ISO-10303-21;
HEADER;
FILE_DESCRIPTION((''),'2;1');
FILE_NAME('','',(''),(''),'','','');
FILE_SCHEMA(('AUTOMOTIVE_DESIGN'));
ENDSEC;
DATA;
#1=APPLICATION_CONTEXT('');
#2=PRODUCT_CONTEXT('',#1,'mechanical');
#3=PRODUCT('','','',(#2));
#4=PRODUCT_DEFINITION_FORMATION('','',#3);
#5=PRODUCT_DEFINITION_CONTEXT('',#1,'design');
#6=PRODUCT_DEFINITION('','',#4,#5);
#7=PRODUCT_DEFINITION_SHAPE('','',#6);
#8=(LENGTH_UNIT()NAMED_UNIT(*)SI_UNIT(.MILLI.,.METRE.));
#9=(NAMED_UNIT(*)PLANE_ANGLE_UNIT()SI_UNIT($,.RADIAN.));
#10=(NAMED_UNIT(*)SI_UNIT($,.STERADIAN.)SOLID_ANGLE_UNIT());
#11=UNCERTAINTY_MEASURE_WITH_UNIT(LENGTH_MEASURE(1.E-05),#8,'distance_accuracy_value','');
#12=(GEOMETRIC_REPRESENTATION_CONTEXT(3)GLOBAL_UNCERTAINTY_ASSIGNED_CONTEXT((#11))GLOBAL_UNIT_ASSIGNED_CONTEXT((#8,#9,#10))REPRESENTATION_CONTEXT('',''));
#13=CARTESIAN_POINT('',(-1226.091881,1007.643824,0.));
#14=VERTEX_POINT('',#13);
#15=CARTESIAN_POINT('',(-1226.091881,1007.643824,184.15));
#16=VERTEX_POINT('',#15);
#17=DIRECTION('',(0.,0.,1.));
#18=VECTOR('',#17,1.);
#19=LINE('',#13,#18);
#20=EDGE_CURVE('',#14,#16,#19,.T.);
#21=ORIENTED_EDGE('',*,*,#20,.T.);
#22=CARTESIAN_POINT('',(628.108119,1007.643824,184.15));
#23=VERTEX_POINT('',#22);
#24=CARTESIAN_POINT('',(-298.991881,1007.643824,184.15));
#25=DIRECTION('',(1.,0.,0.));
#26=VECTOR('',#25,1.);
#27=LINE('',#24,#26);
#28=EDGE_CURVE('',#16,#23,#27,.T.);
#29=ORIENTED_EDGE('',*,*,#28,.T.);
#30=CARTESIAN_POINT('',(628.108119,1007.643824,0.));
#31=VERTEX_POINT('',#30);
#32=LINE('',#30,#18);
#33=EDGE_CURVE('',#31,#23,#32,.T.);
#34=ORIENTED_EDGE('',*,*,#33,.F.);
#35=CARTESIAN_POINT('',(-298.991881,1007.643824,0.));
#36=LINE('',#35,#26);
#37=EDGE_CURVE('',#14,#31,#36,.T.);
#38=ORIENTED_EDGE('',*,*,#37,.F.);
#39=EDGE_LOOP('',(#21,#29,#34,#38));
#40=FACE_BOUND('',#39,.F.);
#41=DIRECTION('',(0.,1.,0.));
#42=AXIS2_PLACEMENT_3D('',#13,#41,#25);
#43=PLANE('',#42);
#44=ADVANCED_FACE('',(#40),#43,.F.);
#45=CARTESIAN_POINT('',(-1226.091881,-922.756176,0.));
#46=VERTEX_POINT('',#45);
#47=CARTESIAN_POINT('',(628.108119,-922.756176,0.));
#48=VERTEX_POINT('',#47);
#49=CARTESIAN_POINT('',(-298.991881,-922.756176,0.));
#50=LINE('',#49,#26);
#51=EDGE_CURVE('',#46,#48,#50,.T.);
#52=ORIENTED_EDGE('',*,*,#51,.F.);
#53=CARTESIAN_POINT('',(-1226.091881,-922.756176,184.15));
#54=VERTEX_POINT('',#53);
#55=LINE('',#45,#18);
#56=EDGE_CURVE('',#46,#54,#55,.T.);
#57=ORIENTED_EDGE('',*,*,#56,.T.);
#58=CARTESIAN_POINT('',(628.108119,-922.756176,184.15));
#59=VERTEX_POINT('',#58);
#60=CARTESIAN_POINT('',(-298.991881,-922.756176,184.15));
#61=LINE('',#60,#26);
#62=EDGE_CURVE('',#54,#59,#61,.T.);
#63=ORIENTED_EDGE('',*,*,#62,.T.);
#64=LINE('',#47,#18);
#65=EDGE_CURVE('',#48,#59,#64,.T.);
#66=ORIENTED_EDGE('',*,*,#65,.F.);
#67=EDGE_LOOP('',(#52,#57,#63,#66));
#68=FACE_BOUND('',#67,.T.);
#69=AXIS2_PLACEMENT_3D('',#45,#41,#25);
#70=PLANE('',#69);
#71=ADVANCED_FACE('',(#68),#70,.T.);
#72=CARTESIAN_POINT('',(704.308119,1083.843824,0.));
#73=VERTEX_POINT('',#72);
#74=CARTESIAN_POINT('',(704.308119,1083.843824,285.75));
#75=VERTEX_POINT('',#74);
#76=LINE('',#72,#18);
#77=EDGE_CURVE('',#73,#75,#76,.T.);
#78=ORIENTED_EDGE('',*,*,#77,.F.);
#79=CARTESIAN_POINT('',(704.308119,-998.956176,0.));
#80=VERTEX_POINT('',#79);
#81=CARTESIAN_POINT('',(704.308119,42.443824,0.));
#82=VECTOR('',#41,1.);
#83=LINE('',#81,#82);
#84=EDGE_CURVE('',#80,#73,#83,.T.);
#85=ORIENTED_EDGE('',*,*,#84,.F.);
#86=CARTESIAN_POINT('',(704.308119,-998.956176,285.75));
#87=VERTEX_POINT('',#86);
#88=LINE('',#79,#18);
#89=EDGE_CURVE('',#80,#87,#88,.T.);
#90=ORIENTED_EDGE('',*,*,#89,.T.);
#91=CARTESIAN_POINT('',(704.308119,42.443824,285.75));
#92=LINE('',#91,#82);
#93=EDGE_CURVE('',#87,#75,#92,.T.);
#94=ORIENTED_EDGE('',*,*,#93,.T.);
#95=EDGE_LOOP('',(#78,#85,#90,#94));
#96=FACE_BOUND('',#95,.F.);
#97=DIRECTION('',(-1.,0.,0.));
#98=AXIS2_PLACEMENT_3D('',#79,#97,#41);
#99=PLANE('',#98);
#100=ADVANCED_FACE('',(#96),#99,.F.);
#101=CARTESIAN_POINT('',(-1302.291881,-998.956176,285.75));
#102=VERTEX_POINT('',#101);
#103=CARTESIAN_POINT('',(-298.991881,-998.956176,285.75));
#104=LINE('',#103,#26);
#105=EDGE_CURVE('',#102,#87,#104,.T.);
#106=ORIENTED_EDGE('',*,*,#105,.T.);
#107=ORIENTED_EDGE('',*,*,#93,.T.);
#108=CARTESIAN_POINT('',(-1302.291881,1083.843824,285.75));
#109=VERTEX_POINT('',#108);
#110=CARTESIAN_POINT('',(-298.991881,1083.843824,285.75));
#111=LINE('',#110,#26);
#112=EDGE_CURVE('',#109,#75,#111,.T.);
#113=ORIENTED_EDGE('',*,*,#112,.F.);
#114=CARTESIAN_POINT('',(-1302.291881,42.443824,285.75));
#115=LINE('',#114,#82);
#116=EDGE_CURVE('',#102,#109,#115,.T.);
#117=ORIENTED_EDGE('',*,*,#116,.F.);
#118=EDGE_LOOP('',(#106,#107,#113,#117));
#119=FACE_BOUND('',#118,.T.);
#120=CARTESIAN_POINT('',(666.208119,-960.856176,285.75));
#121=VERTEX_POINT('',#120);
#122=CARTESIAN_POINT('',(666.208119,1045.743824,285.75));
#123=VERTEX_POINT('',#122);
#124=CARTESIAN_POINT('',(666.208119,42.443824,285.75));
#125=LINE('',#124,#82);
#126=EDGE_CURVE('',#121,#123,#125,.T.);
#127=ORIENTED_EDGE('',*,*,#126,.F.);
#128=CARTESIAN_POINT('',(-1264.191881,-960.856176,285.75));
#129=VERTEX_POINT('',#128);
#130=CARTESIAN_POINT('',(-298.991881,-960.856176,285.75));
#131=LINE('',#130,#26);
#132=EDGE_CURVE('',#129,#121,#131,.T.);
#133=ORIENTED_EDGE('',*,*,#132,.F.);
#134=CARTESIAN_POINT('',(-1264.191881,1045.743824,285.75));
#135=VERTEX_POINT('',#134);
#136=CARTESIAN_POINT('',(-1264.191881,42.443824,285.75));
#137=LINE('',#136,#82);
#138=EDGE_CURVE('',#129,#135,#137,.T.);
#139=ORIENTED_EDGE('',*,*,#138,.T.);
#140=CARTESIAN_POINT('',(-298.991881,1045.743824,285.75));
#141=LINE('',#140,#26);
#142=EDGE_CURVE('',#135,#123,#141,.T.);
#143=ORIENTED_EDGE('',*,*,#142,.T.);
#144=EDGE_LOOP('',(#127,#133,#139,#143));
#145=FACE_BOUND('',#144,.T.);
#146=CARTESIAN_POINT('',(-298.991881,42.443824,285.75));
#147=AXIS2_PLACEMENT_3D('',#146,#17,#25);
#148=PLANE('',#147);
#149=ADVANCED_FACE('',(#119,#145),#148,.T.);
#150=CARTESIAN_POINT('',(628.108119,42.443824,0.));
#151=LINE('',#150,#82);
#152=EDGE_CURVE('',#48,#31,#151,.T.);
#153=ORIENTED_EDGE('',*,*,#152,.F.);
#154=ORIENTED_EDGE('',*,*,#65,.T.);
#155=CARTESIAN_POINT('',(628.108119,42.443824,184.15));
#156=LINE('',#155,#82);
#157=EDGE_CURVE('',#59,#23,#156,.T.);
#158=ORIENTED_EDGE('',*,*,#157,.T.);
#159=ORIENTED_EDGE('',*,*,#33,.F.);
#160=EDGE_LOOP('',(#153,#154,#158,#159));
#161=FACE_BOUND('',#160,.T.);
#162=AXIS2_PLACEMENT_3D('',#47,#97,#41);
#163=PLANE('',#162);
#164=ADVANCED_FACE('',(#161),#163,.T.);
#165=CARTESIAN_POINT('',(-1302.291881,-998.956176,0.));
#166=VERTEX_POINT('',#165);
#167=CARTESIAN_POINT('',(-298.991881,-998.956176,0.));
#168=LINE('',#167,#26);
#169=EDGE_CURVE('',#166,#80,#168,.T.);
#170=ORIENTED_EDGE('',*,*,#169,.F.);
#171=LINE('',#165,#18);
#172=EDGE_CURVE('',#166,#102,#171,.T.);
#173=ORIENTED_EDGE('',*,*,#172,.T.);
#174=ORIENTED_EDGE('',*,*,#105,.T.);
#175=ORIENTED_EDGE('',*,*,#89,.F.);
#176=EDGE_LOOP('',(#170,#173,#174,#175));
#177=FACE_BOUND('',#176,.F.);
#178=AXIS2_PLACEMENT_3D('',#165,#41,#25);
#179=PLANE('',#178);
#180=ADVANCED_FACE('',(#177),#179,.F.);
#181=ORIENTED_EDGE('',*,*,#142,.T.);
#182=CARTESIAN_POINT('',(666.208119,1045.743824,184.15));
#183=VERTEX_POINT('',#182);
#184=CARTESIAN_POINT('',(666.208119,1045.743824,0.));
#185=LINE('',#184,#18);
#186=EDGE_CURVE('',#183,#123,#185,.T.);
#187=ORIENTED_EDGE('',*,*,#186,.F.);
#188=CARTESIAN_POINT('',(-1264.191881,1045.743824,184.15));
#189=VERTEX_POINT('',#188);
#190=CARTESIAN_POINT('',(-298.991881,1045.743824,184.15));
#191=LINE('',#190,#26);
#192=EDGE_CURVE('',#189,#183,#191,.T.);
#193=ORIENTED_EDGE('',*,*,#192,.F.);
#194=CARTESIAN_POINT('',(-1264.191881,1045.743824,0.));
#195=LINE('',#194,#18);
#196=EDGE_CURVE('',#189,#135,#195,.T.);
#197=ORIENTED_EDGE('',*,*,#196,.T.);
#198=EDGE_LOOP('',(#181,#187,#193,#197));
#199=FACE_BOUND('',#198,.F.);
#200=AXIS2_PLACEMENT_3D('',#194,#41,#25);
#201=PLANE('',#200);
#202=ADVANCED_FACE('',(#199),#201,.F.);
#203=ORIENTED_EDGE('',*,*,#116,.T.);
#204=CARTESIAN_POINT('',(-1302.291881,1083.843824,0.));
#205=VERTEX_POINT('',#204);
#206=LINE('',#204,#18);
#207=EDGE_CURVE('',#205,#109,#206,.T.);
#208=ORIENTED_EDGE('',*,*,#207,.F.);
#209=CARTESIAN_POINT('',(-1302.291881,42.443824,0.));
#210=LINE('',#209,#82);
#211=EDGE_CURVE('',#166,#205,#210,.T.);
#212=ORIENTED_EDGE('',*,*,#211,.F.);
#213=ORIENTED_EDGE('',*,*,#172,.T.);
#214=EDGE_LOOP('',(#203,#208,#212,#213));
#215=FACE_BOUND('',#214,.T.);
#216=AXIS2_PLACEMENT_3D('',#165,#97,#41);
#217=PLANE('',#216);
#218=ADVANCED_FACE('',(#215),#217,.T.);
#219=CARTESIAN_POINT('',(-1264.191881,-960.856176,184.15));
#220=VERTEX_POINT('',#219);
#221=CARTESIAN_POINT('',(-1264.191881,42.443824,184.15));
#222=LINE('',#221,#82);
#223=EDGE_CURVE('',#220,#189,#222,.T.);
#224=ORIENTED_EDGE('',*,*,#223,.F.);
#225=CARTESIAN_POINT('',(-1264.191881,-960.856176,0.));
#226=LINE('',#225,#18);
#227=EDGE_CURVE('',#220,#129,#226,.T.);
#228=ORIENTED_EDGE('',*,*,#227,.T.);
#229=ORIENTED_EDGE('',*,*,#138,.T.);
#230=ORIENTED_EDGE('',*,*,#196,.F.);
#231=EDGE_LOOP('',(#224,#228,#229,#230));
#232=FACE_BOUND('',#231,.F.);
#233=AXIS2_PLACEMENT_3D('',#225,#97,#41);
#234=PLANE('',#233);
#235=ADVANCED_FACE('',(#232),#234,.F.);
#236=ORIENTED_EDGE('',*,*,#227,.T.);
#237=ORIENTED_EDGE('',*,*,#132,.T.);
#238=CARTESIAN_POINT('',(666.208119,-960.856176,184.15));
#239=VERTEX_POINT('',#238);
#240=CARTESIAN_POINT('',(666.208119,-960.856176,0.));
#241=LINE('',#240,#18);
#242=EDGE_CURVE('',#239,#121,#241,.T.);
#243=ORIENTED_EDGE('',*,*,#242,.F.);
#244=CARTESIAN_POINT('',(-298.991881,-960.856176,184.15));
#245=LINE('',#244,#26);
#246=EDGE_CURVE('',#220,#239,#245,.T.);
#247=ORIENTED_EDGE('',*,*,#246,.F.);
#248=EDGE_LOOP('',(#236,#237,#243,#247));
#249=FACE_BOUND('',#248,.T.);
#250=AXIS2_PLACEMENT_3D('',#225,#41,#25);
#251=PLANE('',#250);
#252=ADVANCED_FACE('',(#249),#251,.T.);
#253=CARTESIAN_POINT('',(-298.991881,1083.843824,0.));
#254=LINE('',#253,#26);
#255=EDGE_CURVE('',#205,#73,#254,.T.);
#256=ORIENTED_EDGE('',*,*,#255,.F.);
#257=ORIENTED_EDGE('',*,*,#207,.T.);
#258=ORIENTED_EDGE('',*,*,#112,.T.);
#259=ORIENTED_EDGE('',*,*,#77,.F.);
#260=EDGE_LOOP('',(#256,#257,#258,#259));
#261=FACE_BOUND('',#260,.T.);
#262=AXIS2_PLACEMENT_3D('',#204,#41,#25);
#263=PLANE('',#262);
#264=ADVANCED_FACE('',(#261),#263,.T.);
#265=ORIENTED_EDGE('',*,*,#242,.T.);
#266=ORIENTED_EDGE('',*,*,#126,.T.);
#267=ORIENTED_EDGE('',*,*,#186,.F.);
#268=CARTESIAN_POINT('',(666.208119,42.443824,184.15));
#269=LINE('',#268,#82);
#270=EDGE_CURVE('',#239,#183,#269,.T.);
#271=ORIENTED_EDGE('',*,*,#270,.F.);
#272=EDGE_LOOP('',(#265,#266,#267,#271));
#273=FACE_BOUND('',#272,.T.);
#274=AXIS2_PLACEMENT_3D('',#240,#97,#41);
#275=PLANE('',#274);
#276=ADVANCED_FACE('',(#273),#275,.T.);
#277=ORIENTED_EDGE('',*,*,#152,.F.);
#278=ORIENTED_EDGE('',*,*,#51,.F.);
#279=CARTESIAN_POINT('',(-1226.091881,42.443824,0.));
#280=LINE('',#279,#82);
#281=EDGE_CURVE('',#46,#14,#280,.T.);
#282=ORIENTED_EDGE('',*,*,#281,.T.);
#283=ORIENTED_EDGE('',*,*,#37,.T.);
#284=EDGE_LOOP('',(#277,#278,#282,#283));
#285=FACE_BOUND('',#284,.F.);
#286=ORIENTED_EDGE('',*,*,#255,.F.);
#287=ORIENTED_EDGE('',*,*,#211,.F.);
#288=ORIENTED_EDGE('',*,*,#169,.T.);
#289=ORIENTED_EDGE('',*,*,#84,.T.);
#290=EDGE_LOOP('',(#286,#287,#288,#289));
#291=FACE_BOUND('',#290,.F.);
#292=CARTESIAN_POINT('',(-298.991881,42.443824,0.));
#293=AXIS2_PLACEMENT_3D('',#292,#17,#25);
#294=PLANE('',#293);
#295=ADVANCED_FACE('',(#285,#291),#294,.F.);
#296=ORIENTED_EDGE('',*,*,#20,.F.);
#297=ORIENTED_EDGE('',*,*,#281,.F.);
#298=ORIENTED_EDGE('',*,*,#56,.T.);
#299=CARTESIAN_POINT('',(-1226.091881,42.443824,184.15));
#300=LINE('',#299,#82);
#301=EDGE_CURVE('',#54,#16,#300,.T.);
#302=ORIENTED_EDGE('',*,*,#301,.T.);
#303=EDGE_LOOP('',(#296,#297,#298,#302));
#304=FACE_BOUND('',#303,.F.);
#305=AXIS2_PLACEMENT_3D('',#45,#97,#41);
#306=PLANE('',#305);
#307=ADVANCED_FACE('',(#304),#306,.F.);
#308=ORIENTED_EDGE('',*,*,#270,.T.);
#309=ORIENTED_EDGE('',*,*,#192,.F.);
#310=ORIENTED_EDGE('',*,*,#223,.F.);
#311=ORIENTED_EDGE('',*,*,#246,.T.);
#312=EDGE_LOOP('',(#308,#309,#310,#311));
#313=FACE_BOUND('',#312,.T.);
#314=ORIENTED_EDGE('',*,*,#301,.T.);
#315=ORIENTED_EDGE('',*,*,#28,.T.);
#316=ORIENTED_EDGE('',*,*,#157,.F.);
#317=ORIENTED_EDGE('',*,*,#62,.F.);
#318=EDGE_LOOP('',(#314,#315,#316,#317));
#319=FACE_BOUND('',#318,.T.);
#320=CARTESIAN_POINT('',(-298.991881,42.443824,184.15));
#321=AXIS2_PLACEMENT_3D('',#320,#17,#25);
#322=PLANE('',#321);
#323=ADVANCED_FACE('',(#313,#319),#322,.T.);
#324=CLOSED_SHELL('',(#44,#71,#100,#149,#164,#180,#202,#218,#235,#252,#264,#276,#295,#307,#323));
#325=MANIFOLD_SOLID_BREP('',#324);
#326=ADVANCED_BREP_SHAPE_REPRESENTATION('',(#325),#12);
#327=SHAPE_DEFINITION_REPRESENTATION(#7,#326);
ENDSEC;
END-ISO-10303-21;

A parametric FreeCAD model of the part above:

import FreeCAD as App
import Part
import Sketcher
Q = App.Units.Quantity

doc = App.newDocument("Part")
body = doc.addObject("PartDesign::Body", "Body")

sketch1 = doc.addObject("Sketcher::SketchObject", "Sketch")
body.addObject(sketch1)
sketch1.AttachmentSupport = (doc.XY_Plane, [""])
sketch1.MapMode = "FlatFace"
sketch1.addGeometry(Part.LineSegment(App.Vector(-1264, 1046, 0), App.Vector(-1264, -961, 0)), False)
sketch1.addGeometry(Part.LineSegment(App.Vector(-1264, -961, 0), App.Vector(666, -961, 0)), False)
sketch1.addGeometry(Part.LineSegment(App.Vector(666, -961, 0), App.Vector(666, 1046, 0)), False)
sketch1.addGeometry(Part.LineSegment(App.Vector(666, 1046, 0), App.Vector(-1264, 1046, 0)), False)
sketch1.addGeometry(Part.LineSegment(App.Vector(628, -923, 0), App.Vector(-1226, -923, 0)), False)
sketch1.addGeometry(Part.LineSegment(App.Vector(-1226, -923, 0), App.Vector(-1226, 1008, 0)), False)
sketch1.addGeometry(Part.LineSegment(App.Vector(-1226, 1008, 0), App.Vector(628, 1008, 0)), False)
sketch1.addGeometry(Part.LineSegment(App.Vector(628, 1008, 0), App.Vector(628, -923, 0)), False)
sketch1.addConstraint(Sketcher.Constraint("Coincident", 0, 2, 1, 1))
sketch1.addConstraint(Sketcher.Constraint("Coincident", 1, 2, 2, 1))
sketch1.addConstraint(Sketcher.Constraint("Coincident", 2, 2, 3, 1))
sketch1.addConstraint(Sketcher.Constraint("Coincident", 3, 2, 0, 1))
sketch1.addConstraint(Sketcher.Constraint("Coincident", 4, 2, 5, 1))
sketch1.addConstraint(Sketcher.Constraint("Coincident", 5, 2, 6, 1))
sketch1.addConstraint(Sketcher.Constraint("Coincident", 6, 2, 7, 1))
sketch1.addConstraint(Sketcher.Constraint("Coincident", 7, 2, 4, 1))
sketch1.addConstraint(Sketcher.Constraint("Vertical", 0))
sketch1.addConstraint(Sketcher.Constraint("Horizontal", 1))
sketch1.addConstraint(Sketcher.Constraint("Vertical", 2))
sketch1.addConstraint(Sketcher.Constraint("Horizontal", 3))
sketch1.addConstraint(Sketcher.Constraint("Horizontal", 4))
sketch1.addConstraint(Sketcher.Constraint("Vertical", 5))
sketch1.addConstraint(Sketcher.Constraint("Horizontal", 6))
sketch1.addConstraint(Sketcher.Constraint("Vertical", 7))
sketch1.addConstraint(Sketcher.Constraint("Equal", 3, 5))
sketch1.addConstraint(Sketcher.Constraint("DistanceX", 1, 1, 1, 2, Q("76 in")))
sketch1.addConstraint(Sketcher.Constraint("DistanceX", 4, 2, 4, 1, Q("73 in")))
sketch1.addConstraint(Sketcher.Constraint("DistanceY", 0, 2, 0, 1, Q("79 in")))
sketch1.addConstraint(Sketcher.Constraint("DistanceX", 0, 2, 4, 2, Q("1.5 in")))
sketch1.addConstraint(Sketcher.Constraint("DistanceY", 0, 2, 4, 2, Q("1.5 in")))
sketch1.addConstraint(Sketcher.Constraint("DistanceX", 0, 2, -1, 1, Q("1264.191881 mm")))
sketch1.addConstraint(Sketcher.Constraint("DistanceY", 0, 2, -1, 1, Q("960.856176 mm")))
pad1 = doc.addObject("PartDesign::Pad", "Pad")
body.addObject(pad1)
pad1.Profile = sketch1
pad1.Length = Q("7.25 in")

sketch2 = doc.addObject("Sketcher::SketchObject", "Sketch001")
body.addObject(sketch2)
sketch2.AttachmentSupport = (doc.XY_Plane, [""])
sketch2.MapMode = "FlatFace"
sketch2.addGeometry(Part.LineSegment(App.Vector(-1302, 1084, 0), App.Vector(-1302, -999, 0)), False)
sketch2.addGeometry(Part.LineSegment(App.Vector(-1302, -999, 0), App.Vector(704, -999, 0)), False)
sketch2.addGeometry(Part.LineSegment(App.Vector(704, -999, 0), App.Vector(704, 1084, 0)), False)
sketch2.addGeometry(Part.LineSegment(App.Vector(704, 1084, 0), App.Vector(-1302, 1084, 0)), False)
sketch2.addGeometry(Part.LineSegment(App.Vector(666, -961, 0), App.Vector(-1264, -961, 0)), False)
sketch2.addGeometry(Part.LineSegment(App.Vector(-1264, -961, 0), App.Vector(-1264, 1046, 0)), False)
sketch2.addGeometry(Part.LineSegment(App.Vector(-1264, 1046, 0), App.Vector(666, 1046, 0)), False)
sketch2.addGeometry(Part.LineSegment(App.Vector(666, 1046, 0), App.Vector(666, -961, 0)), False)
sketch2.addConstraint(Sketcher.Constraint("Coincident", 0, 2, 1, 1))
sketch2.addConstraint(Sketcher.Constraint("Coincident", 1, 2, 2, 1))
sketch2.addConstraint(Sketcher.Constraint("Coincident", 2, 2, 3, 1))
sketch2.addConstraint(Sketcher.Constraint("Coincident", 3, 2, 0, 1))
sketch2.addConstraint(Sketcher.Constraint("Coincident", 4, 2, 5, 1))
sketch2.addConstraint(Sketcher.Constraint("Coincident", 5, 2, 6, 1))
sketch2.addConstraint(Sketcher.Constraint("Coincident", 6, 2, 7, 1))
sketch2.addConstraint(Sketcher.Constraint("Coincident", 7, 2, 4, 1))
sketch2.addConstraint(Sketcher.Constraint("Vertical", 0))
sketch2.addConstraint(Sketcher.Constraint("Horizontal", 1))
sketch2.addConstraint(Sketcher.Constraint("Vertical", 2))
sketch2.addConstraint(Sketcher.Constraint("Horizontal", 3))
sketch2.addConstraint(Sketcher.Constraint("Horizontal", 4))
sketch2.addConstraint(Sketcher.Constraint("Vertical", 5))
sketch2.addConstraint(Sketcher.Constraint("Horizontal", 6))
sketch2.addConstraint(Sketcher.Constraint("Vertical", 7))
sketch2.addConstraint(Sketcher.Constraint("Equal", 3, 5))
sketch2.addConstraint(Sketcher.Constraint("DistanceX", 1, 1, 1, 2, Q("79 in")))
sketch2.addConstraint(Sketcher.Constraint("DistanceX", 4, 2, 4, 1, Q("76 in")))
sketch2.addConstraint(Sketcher.Constraint("DistanceY", 0, 2, 0, 1, Q("82 in")))
sketch2.addConstraint(Sketcher.Constraint("DistanceX", 0, 2, 4, 2, Q("1.5 in")))
sketch2.addConstraint(Sketcher.Constraint("DistanceY", 0, 2, 4, 2, Q("1.5 in")))
sketch2.addConstraint(Sketcher.Constraint("DistanceX", 0, 2, -1, 1, Q("1302.291881 mm")))
sketch2.addConstraint(Sketcher.Constraint("DistanceY", 0, 2, -1, 1, Q("998.956176 mm")))
pad2 = doc.addObject("PartDesign::Pad", "Pad001")
body.addObject(pad2)
pad2.Profile = sketch2
pad2.Length = Q("11.25 in")

doc.recompute()
